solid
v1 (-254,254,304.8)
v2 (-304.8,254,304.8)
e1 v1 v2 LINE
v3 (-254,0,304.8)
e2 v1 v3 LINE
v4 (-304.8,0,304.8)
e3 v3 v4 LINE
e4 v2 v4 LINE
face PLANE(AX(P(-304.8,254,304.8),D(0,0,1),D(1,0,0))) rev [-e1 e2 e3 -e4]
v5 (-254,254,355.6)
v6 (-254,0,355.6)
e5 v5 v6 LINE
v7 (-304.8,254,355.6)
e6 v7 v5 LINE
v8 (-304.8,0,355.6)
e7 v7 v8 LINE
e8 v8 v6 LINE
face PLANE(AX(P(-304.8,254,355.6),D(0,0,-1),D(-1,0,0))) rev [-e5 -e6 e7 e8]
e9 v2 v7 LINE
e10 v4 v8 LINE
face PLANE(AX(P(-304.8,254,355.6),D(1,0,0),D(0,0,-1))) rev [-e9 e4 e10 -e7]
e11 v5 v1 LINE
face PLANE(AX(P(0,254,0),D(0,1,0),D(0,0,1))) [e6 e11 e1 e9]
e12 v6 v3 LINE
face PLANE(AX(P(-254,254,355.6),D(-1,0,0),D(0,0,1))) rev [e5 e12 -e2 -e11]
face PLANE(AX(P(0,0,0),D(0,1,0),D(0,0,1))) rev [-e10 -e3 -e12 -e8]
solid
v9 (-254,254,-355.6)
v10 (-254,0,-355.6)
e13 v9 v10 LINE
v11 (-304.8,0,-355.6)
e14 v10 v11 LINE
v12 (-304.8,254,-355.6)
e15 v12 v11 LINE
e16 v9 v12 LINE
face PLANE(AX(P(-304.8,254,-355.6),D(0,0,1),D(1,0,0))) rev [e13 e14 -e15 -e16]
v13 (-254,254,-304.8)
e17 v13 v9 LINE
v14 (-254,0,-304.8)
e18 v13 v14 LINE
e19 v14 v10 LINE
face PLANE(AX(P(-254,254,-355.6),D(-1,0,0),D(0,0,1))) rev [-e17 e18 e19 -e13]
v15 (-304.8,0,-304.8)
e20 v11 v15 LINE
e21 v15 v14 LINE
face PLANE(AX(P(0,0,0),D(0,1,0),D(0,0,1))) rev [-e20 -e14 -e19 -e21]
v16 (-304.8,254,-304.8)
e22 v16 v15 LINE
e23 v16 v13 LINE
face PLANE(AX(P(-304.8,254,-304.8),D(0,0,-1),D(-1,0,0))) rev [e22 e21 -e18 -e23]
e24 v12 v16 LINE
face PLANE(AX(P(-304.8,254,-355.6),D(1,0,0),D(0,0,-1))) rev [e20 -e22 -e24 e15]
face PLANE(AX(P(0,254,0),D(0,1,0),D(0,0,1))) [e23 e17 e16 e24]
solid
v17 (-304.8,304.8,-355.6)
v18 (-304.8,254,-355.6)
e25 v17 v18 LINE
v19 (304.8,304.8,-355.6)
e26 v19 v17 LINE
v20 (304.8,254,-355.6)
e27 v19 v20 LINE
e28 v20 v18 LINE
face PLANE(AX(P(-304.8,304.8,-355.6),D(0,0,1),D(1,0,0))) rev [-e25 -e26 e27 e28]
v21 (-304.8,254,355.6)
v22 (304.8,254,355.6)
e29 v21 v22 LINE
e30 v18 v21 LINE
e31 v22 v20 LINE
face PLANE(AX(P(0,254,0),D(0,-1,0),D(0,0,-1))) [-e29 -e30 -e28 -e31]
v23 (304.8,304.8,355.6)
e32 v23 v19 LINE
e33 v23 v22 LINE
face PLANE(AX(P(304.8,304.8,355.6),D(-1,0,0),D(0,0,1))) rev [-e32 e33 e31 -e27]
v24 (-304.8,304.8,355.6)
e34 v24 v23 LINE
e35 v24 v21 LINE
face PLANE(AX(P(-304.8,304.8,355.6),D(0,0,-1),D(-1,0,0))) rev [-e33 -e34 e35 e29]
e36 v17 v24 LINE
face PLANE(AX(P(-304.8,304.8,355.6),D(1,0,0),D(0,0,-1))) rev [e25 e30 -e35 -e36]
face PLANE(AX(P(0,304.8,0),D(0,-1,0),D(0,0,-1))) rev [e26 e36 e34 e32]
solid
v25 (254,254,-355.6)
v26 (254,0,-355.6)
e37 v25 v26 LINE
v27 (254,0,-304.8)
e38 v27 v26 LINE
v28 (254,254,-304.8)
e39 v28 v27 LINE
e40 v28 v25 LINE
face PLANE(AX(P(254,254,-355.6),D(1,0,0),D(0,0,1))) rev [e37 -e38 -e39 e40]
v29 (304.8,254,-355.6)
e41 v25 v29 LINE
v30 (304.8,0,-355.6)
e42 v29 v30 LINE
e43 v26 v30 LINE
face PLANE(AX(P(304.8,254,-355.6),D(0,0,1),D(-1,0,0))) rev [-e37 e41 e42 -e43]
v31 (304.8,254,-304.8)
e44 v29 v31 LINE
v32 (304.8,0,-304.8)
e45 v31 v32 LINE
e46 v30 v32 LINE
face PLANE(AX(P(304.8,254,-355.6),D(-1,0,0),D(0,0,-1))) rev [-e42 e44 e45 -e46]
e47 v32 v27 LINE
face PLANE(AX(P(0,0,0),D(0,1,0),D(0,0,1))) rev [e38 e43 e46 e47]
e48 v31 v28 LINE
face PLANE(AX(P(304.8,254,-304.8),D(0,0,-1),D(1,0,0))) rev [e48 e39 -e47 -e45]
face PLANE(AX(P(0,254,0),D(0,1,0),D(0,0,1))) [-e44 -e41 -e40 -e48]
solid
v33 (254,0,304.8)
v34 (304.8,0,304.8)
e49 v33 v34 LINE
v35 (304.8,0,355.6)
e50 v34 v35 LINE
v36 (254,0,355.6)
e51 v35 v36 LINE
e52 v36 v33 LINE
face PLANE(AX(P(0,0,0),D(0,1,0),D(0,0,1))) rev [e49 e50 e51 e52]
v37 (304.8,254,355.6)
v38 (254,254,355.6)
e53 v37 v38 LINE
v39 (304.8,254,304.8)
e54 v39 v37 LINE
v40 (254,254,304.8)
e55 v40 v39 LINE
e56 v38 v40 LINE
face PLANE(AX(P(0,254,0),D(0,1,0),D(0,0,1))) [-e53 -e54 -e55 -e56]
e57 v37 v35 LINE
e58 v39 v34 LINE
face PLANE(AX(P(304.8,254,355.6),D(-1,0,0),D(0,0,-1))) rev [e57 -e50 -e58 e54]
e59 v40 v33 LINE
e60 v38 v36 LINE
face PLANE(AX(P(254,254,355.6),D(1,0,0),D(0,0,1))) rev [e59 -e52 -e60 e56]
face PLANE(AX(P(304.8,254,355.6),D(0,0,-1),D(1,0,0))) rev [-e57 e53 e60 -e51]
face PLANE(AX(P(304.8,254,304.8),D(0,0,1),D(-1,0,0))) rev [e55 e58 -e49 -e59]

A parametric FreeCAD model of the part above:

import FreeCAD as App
import Part
import Sketcher

V = App.Vector
Q = App.Units.Quantity

doc = App.newDocument("Part")
body = doc.addObject("PartDesign::Body", "Body")

sketch1 = body.newObject("Sketcher::SketchObject", "Sketch")
sketch1.AttachmentSupport = (doc.getObject("XZ_Plane"), [""])
sketch1.MapMode = "FlatFace"
sketch1.addGeometry(Part.LineSegment(V(-305, -356, 0), V(-305, -305, 0)), False)
sketch1.addGeometry(Part.LineSegment(V(-305, -305, 0), V(-254, -305, 0)), False)
sketch1.addGeometry(Part.LineSegment(V(-254, -305, 0), V(-254, -356, 0)), False)
sketch1.addGeometry(Part.LineSegment(V(-254, -356, 0), V(-305, -356, 0)), False)
sketch1.addConstraint(Sketcher.Constraint("Coincident", 0, 2, 1, 1))
sketch1.addConstraint(Sketcher.Constraint("Coincident", 1, 2, 2, 1))
sketch1.addConstraint(Sketcher.Constraint("Coincident", 2, 2, 3, 1))
sketch1.addConstraint(Sketcher.Constraint("Coincident", 3, 2, 0, 1))
sketch1.addConstraint(Sketcher.Constraint("Vertical", 0))
sketch1.addConstraint(Sketcher.Constraint("Horizontal", 1))
sketch1.addConstraint(Sketcher.Constraint("Vertical", 2))
sketch1.addConstraint(Sketcher.Constraint("Horizontal", 3))
sketch1.addConstraint(Sketcher.Constraint("Equal", 3, 0))
sketch1.addConstraint(Sketcher.Constraint("DistanceX", 1, 1, 1, 2, Q("2 in")))
sketch1.addConstraint(Sketcher.Constraint("DistanceX", 0, 2, -1, 1, Q("12 in")))
sketch1.addConstraint(Sketcher.Constraint("DistanceY", 0, 2, -1, 1, Q("12 in")))
pad1 = body.newObject("PartDesign::Pad", "Pad")
pad1.Profile = sketch1
pad1.Length = Q("10 in")
pad1.Reversed = True
body2 = doc.addObject("PartDesign::Body", "Body001")

sketch2 = body2.newObject("Sketcher::SketchObject", "Sketch001")
sketch2.AttachmentSupport = (doc.getObject("XZ_Plane001"), [""])
sketch2.MapMode = "FlatFace"
sketch2.addGeometry(Part.LineSegment(V(-305, 305, 0), V(-305, 356, 0)), False)
sketch2.addGeometry(Part.LineSegment(V(-305, 356, 0), V(-254, 356, 0)), False)
sketch2.addGeometry(Part.LineSegment(V(-254, 356, 0), V(-254, 305, 0)), False)
sketch2.addGeometry(Part.LineSegment(V(-254, 305, 0), V(-305, 305, 0)), False)
sketch2.addConstraint(Sketcher.Constraint("Coincident", 0, 2, 1, 1))
sketch2.addConstraint(Sketcher.Constraint("Coincident", 1, 2, 2, 1))
sketch2.addConstraint(Sketcher.Constraint("Coincident", 2, 2, 3, 1))
sketch2.addConstraint(Sketcher.Constraint("Coincident", 3, 2, 0, 1))
sketch2.addConstraint(Sketcher.Constraint("Vertical", 0))
sketch2.addConstraint(Sketcher.Constraint("Horizontal", 1))
sketch2.addConstraint(Sketcher.Constraint("Vertical", 2))
sketch2.addConstraint(Sketcher.Constraint("Horizontal", 3))
sketch2.addConstraint(Sketcher.Constraint("Equal", 3, 0))
sketch2.addConstraint(Sketcher.Constraint("DistanceX", 1, 1, 1, 2, Q("2 in")))
sketch2.addConstraint(Sketcher.Constraint("DistanceX", 0, 2, -1, 1, Q("12 in")))
sketch2.addConstraint(Sketcher.Constraint("DistanceY", -1, 1, 0, 2, Q("14 in")))
pad2 = body2.newObject("PartDesign::Pad", "Pad001")
pad2.Profile = sketch2
pad2.Length = Q("10 in")
pad2.Reversed = True
body3 = doc.addObject("PartDesign::Body", "Body002")
doc.recompute()

mirroring = doc.addObject("Part::Mirroring", "Mirroring")
mirroring.Source = body
mirroring.Base = V(0, 0, 0)
mirroring.Normal = V(1, 0, 0)
body3.BaseFeature = mirroring
doc.recompute()
body4 = doc.addObject("PartDesign::Body", "Body003")
doc.recompute()

mirroring2 = doc.addObject("Part::Mirroring", "Mirroring001")
mirroring2.Source = body2
mirroring2.Base = V(0, 0, 0)
mirroring2.Normal = V(1, 0, 0)
body4.BaseFeature = mirroring2
doc.recompute()
body5 = doc.addObject("PartDesign::Body", "Body004")

sketch3 = body5.newObject("Sketcher::SketchObject", "Sketch002")
sketch3.AttachmentSupport = (doc.getObject("XZ_Plane004"), [""])
sketch3.MapMode = "FlatFace"
sketch3.AttachmentOffset = App.Placement(V(0, 0, -10 * 25.4), App.Rotation())
sketch3.addGeometry(Part.LineSegment(V(-305, -356, 0), V(-305, 356, 0)), False)
sketch3.addGeometry(Part.LineSegment(V(-305, 356, 0), V(305, 356, 0)), False)
sketch3.addGeometry(Part.LineSegment(V(305, 356, 0), V(305, -356, 0)), False)
sketch3.addGeometry(Part.LineSegment(V(305, -356, 0), V(-305, -356, 0)), False)
sketch3.addConstraint(Sketcher.Constraint("Coincident", 0, 2, 1, 1))
sketch3.addConstraint(Sketcher.Constraint("Coincident", 1, 2, 2, 1))
sketch3.addConstraint(Sketcher.Constraint("Coincident", 2, 2, 3, 1))
sketch3.addConstraint(Sketcher.Constraint("Coincident", 3, 2, 0, 1))
sketch3.addConstraint(Sketcher.Constraint("Vertical", 0))
sketch3.addConstraint(Sketcher.Constraint("Horizontal", 1))
sketch3.addConstraint(Sketcher.Constraint("Vertical", 2))
sketch3.addConstraint(Sketcher.Constraint("Horizontal", 3))
sketch3.addConstraint(Sketcher.Constraint("Symmetric", 0, 2, 2, 2, -1, 1))
sketch3.addConstraint(Sketcher.Constraint("DistanceX", 1, 1, 1, 2, Q("24 in")))
sketch3.addConstraint(Sketcher.Constraint("DistanceY", 0, 1, 0, 2, Q("28 in")))
pad3 = body5.newObject("PartDesign::Pad", "Pad002")
pad3.Profile = sketch3
pad3.Length = Q("2 in")
pad3.Reversed = True
mirroring.Visibility = False
mirroring2.Visibility = False

doc.recompute()
